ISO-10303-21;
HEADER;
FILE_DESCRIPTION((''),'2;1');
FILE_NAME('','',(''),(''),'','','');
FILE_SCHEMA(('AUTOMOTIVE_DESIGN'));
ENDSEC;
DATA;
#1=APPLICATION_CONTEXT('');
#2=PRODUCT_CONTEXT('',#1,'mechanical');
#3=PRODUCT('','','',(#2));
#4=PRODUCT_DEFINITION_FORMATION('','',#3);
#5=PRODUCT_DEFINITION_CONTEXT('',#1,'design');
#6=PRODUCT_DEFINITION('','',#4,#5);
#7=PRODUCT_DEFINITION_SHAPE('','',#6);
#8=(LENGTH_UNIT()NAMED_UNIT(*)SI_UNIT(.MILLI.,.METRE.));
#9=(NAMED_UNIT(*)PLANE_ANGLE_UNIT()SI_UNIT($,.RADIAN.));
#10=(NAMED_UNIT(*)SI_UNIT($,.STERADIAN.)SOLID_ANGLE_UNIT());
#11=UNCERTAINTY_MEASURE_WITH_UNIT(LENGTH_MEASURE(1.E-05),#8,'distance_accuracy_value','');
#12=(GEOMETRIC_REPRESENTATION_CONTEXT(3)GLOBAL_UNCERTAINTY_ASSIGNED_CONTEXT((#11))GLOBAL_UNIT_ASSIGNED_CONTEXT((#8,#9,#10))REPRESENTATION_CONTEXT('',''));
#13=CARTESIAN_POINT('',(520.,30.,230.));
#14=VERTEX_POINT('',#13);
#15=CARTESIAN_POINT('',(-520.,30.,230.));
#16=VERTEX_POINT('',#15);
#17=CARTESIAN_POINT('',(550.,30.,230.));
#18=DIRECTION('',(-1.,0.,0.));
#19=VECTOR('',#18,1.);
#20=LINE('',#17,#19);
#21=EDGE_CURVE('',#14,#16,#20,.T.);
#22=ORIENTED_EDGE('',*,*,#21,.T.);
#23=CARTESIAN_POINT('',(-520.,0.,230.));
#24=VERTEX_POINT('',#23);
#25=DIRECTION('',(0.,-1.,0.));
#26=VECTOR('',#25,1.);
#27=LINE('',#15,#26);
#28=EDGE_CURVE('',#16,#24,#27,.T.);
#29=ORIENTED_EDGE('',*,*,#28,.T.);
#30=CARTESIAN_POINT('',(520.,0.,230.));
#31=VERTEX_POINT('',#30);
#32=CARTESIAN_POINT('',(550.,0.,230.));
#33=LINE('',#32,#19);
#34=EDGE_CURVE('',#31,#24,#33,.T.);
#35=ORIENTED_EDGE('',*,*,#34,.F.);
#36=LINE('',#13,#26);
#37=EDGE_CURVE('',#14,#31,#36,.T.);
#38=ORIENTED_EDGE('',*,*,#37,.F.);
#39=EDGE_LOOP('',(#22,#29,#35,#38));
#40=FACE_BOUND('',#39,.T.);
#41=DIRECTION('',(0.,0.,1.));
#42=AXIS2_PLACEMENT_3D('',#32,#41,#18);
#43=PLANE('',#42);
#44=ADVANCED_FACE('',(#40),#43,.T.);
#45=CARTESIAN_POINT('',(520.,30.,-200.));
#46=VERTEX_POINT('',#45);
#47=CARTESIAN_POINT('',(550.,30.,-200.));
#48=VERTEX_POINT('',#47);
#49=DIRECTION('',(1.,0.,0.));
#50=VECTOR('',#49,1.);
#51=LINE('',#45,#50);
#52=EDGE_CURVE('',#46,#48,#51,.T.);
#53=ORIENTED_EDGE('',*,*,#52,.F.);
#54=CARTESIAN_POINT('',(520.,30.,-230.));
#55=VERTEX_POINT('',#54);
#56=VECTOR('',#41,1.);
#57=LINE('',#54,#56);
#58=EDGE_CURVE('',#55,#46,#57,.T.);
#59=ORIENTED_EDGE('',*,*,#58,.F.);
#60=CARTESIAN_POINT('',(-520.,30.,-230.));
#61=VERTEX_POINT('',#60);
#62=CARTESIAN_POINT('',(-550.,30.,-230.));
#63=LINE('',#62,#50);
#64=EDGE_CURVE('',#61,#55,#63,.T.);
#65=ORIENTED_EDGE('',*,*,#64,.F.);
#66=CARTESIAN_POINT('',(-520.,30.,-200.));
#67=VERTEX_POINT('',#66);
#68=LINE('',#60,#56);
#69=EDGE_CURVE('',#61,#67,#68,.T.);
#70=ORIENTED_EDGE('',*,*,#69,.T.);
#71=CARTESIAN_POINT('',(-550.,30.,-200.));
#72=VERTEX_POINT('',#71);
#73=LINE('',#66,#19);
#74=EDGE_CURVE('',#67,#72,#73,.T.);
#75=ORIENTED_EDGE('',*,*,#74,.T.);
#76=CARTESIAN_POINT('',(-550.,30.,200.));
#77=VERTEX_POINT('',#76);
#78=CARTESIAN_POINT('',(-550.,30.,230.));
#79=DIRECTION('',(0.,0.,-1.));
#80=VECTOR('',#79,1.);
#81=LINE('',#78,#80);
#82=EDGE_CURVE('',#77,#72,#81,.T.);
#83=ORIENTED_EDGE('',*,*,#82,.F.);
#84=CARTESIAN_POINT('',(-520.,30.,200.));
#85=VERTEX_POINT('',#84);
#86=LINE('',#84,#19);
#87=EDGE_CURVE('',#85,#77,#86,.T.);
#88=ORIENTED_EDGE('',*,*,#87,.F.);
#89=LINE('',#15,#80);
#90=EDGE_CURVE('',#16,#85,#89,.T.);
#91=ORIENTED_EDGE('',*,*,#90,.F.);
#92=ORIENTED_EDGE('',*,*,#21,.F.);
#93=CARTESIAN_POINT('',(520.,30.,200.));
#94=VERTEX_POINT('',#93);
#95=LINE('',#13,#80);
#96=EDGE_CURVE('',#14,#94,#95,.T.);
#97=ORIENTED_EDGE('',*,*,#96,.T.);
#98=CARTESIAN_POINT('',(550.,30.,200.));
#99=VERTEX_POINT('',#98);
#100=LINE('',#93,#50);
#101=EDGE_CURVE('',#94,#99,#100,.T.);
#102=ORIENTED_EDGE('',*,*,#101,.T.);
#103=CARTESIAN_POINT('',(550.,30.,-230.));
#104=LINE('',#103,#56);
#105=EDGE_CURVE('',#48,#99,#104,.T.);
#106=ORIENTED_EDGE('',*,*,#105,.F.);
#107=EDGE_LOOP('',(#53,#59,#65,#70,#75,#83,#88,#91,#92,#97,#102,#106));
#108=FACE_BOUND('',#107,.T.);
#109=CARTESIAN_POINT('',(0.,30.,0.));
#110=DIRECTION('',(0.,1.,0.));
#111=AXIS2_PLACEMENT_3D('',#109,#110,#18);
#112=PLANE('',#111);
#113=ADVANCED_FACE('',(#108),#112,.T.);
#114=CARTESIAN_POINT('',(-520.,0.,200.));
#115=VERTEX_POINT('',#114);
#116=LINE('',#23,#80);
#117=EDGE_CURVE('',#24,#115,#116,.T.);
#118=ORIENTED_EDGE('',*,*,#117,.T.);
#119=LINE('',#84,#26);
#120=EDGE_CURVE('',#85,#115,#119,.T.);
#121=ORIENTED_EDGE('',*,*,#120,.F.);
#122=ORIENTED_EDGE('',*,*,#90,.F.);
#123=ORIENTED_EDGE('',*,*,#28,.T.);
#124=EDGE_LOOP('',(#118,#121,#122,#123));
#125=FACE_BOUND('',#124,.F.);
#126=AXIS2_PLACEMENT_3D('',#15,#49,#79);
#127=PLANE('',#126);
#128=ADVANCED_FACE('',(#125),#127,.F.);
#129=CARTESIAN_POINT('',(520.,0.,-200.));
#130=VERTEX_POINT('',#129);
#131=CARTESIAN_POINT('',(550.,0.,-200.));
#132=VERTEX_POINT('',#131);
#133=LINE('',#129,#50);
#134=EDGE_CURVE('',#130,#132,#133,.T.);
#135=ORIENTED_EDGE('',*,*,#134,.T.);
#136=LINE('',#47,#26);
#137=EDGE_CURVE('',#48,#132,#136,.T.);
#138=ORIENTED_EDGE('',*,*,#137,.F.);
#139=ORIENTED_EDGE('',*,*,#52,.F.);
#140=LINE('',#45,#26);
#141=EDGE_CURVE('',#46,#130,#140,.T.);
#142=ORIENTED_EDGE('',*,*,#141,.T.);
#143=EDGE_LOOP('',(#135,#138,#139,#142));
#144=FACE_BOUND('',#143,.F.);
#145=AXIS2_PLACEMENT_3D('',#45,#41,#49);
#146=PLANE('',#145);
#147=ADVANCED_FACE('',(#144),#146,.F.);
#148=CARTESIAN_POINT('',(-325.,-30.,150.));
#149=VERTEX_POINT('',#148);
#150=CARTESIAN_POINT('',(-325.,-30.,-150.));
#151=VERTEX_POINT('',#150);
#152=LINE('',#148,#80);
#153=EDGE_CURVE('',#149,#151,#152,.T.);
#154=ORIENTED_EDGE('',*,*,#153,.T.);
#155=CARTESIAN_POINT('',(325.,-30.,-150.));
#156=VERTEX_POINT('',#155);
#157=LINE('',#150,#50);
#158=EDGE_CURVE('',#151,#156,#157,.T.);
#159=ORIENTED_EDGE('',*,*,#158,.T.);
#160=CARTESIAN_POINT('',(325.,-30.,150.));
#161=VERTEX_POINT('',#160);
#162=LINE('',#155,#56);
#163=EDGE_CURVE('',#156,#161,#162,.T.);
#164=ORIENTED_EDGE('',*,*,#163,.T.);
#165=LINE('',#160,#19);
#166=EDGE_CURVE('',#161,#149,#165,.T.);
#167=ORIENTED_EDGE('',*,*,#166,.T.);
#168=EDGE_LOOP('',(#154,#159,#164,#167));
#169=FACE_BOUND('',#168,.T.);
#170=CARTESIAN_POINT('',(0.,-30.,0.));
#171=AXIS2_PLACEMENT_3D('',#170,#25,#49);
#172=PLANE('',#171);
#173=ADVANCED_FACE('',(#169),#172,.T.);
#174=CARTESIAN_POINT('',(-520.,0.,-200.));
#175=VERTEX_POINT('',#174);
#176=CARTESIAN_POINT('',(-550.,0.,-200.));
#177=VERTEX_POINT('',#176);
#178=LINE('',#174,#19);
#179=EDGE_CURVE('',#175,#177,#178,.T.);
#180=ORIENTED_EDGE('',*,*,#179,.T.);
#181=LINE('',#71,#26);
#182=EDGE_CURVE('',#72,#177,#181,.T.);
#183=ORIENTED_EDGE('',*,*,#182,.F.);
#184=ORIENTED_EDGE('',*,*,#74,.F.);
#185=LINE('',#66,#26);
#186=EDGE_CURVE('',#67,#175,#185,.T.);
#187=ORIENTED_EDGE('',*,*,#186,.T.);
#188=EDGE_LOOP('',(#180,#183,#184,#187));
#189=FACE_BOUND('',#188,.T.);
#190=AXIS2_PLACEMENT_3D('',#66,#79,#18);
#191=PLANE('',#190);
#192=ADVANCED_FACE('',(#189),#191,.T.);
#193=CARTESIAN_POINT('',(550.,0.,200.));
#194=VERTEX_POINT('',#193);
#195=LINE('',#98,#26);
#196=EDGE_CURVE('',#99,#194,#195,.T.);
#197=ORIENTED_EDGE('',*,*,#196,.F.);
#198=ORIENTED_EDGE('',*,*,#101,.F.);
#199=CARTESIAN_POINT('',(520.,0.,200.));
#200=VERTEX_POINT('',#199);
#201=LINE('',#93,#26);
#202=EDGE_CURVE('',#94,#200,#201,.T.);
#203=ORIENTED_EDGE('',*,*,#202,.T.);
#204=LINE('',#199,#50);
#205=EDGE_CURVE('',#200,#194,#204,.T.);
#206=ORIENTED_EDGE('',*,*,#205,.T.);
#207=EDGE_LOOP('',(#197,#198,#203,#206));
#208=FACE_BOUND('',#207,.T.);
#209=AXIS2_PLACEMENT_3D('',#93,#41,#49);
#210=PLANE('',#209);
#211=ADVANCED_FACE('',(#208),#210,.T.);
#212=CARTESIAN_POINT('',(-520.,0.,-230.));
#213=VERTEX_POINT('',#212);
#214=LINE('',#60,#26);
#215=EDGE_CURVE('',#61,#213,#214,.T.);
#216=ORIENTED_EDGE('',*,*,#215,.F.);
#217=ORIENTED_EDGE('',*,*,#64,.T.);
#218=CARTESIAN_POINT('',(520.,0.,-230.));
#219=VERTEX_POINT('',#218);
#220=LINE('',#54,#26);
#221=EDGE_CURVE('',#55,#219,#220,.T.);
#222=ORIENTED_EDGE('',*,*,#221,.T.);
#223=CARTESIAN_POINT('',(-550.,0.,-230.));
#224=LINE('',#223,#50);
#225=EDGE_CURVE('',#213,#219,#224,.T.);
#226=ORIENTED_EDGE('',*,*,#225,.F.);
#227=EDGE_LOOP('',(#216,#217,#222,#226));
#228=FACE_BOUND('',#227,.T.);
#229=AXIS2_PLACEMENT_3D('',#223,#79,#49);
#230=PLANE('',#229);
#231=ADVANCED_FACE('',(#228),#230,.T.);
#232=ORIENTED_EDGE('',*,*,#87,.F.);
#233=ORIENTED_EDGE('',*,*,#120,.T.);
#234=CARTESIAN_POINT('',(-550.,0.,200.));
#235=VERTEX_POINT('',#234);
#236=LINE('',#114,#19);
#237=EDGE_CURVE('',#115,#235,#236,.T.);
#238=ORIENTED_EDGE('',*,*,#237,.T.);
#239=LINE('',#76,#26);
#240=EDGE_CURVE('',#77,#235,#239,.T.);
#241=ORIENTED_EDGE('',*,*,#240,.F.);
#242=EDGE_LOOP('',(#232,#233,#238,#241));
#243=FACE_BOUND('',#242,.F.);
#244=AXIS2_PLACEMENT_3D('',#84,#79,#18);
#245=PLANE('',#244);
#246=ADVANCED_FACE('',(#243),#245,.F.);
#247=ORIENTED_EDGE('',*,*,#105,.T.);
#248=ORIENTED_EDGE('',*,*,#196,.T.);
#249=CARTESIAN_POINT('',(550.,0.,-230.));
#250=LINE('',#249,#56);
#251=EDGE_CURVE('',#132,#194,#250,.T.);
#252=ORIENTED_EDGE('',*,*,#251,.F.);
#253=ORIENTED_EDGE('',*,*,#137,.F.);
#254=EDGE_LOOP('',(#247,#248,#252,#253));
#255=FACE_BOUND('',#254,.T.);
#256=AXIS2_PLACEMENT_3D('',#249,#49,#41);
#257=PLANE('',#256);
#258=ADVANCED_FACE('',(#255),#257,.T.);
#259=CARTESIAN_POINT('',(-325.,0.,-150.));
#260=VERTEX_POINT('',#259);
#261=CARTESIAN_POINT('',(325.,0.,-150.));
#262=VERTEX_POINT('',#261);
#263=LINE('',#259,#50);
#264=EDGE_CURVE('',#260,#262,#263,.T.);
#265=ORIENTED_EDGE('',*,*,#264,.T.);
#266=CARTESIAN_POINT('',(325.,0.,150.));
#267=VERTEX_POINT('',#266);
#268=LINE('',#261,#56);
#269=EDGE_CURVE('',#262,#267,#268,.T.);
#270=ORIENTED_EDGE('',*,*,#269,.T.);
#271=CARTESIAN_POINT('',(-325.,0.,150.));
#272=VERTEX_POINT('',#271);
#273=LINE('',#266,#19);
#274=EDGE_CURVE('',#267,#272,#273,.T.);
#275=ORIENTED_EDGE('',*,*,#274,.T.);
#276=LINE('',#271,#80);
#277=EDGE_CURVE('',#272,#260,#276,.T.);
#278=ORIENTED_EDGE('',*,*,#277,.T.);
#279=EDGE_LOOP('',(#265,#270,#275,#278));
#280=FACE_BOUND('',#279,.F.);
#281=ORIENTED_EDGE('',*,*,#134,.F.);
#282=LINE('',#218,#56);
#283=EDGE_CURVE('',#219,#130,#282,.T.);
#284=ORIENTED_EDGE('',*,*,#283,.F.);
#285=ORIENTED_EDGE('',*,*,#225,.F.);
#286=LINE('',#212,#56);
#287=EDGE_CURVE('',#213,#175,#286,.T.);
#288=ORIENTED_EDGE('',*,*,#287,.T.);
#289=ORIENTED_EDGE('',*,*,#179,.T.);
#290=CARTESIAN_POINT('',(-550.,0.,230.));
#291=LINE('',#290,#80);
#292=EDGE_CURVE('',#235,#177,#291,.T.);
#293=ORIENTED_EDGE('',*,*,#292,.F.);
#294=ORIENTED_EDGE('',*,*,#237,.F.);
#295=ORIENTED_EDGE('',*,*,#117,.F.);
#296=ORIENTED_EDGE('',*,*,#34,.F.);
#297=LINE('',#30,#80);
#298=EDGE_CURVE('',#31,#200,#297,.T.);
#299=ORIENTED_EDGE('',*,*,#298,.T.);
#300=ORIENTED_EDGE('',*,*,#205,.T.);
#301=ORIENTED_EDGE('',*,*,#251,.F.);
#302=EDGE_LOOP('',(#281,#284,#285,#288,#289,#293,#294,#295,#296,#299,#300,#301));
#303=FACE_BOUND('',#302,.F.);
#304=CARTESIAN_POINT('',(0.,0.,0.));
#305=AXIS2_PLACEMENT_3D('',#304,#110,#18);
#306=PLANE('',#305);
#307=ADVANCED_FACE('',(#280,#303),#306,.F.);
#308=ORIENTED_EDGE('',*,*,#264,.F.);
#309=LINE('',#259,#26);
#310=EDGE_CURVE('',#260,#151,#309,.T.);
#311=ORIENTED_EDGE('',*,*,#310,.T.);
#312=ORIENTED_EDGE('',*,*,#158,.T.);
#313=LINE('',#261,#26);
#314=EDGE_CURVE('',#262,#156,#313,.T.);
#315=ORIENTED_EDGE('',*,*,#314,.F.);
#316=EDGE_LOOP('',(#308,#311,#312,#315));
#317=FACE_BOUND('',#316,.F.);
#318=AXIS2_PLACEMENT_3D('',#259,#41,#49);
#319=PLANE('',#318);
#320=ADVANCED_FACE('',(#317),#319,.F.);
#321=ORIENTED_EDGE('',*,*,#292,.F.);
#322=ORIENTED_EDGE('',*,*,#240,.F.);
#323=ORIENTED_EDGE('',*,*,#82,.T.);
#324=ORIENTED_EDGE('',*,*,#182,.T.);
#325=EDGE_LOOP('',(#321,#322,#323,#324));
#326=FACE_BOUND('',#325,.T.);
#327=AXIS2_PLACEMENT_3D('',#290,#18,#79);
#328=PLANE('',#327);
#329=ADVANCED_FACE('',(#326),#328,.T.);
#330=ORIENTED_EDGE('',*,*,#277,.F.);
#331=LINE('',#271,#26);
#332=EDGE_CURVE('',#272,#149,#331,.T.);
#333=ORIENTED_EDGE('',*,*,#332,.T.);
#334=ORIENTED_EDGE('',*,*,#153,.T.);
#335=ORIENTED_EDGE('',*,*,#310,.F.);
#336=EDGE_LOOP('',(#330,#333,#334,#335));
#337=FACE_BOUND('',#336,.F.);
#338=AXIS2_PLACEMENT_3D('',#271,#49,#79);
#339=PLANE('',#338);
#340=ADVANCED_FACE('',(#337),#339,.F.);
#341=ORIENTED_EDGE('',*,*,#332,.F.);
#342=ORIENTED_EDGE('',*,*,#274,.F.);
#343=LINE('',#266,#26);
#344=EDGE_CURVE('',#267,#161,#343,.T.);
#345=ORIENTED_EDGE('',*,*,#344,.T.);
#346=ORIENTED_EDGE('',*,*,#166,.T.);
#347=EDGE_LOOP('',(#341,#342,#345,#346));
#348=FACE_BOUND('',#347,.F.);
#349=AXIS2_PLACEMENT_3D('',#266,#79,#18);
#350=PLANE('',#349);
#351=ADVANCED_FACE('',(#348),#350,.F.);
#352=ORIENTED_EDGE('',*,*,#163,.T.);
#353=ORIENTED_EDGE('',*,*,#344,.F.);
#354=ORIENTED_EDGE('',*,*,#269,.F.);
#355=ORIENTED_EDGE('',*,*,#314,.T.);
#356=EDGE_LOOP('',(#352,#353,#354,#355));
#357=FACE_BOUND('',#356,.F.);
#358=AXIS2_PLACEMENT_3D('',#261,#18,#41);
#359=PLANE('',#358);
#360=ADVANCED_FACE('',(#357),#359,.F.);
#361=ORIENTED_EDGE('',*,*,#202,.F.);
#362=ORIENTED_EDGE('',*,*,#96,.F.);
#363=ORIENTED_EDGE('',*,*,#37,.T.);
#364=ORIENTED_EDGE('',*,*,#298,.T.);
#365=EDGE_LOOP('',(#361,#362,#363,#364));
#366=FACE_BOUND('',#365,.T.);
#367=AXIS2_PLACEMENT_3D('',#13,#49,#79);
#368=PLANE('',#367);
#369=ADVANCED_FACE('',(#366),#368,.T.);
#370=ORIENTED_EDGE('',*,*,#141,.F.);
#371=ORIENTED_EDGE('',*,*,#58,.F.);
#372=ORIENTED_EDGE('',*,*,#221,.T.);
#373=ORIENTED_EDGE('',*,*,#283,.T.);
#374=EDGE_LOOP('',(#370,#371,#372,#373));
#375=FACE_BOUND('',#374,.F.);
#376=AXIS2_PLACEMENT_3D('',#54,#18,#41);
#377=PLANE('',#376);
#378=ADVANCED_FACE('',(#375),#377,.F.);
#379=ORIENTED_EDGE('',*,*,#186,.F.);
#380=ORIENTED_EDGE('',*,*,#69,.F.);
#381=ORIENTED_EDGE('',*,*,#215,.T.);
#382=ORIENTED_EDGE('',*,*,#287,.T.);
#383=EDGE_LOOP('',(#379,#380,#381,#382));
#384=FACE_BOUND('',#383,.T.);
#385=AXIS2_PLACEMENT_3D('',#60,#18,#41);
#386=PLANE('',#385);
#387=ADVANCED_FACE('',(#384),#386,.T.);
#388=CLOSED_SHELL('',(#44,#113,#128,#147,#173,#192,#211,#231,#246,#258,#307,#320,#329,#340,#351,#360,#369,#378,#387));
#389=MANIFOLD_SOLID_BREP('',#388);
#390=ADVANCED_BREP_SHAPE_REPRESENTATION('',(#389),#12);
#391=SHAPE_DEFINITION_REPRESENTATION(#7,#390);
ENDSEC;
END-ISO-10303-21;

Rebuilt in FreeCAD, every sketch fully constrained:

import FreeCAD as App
import Part
import Sketcher

V = App.Vector
Q = App.Units.Quantity


def add_polygon(sketch, points):
    """Adds a closed chain of lines whose ends are joined by coincident constraints."""
    first, n = sketch.GeometryCount, len(points)
    for a, b in zip(points, points[1:] + points[:1]):
        sketch.addGeometry(Part.LineSegment(App.Vector(*a, 0), App.Vector(*b, 0)), False)
    for i in range(n):
        sketch.addConstraint(Sketcher.Constraint("Coincident", first + i, 2, first + (i + 1) % n, 1))

doc = App.newDocument("Part")
body = doc.addObject("PartDesign::Body", "Body")

# Sketch on XZ plane
sketch1 = doc.addObject("Sketcher::SketchObject", "Sketch")
body.addObject(sketch1)
sketch1.AttachmentSupport = (doc.XZ_Plane, [""])
sketch1.MapMode = "FlatFace"
add_polygon(sketch1, [(-550, 230), (550, 230), (550, -230), (-550, -230)])  # lines 0-3
sketch1.addConstraint([
    Sketcher.Constraint("Horizontal", 0),
    Sketcher.Constraint("Vertical", 1),
    Sketcher.Constraint("Horizontal", 2),
    Sketcher.Constraint("Vertical", 3),
    Sketcher.Constraint("Symmetric", 0, 2, 2, 2, -1, 1),
    Sketcher.Constraint("DistanceX", 0, 1, 0, 2, Q("1100 mm")),
    Sketcher.Constraint("DistanceY", 1, 2, 1, 1, Q("460 mm")),
])
pad1 = doc.addObject("PartDesign::Pad", "Pad")
body.addObject(pad1)
pad1.Profile = sketch1
pad1.Length = 30
pad1.Reversed = True

# Sketch on XZ plane
sketch2 = doc.addObject("Sketcher::SketchObject", "Sketch001")
body.addObject(sketch2)
sketch2.AttachmentSupport = (doc.XZ_Plane, [""])
sketch2.MapMode = "FlatFace"
sketch2.AttachmentOffset = App.Placement(V(0, 0, -30), App.Rotation())
add_polygon(sketch2, [(-520, -230), (-550, -230), (-550, -200), (-520, -200)])  # lines 0-3
add_polygon(sketch2, [(-520, 200), (-550, 200), (-550, 230), (-520, 230)])  # lines 4-7
add_polygon(sketch2, [(520, 230), (550, 230), (550, 200), (520, 200)])  # lines 8-11
add_polygon(sketch2, [(520, -200), (550, -200), (550, -230), (520, -230)])  # lines 12-15
sketch2.addConstraint([
    Sketcher.Constraint("Horizontal", 0),
    Sketcher.Constraint("Vertical", 1),
    Sketcher.Constraint("Horizontal", 2),
    Sketcher.Constraint("Vertical", 3),
    Sketcher.Constraint("Horizontal", 4),
    Sketcher.Constraint("Vertical", 5),
    Sketcher.Constraint("Horizontal", 6),
    Sketcher.Constraint("Vertical", 7),
    Sketcher.Constraint("Horizontal", 8),
    Sketcher.Constraint("Vertical", 9),
    Sketcher.Constraint("Horizontal", 10),
    Sketcher.Constraint("Vertical", 11),
    Sketcher.Constraint("Horizontal", 12),
    Sketcher.Constraint("Vertical", 13),
    Sketcher.Constraint("Horizontal", 14),
    Sketcher.Constraint("Vertical", 15),
    Sketcher.Constraint("Symmetric", 0, 2, 8, 2, -1, 1),
    Sketcher.Constraint("Symmetric", 2, 2, 10, 2, -1, 1),
    Sketcher.Constraint("Symmetric", 4, 2, 12, 2, -1, 1),
    Sketcher.Constraint("Symmetric", 6, 2, 14, 2, -1, 1),
    Sketcher.Constraint("Symmetric", 5, 2, 8, 2, -2),
    Sketcher.Constraint("Symmetric", 7, 2, 10, 2, -2),
    Sketcher.Constraint("Equal", 14, 1),
    Sketcher.Constraint("DistanceX", 0, 2, 0, 1, Q("30 mm")),
    Sketcher.Constraint("DistanceX", 0, 2, -1, 1, Q("550 mm")),
    Sketcher.Constraint("DistanceY", 0, 2, -1, 1, Q("230 mm")),
])
pocket1 = doc.addObject("PartDesign::Pocket", "Pocket")
body.addObject(pocket1)
pocket1.Profile = sketch2
pocket1.Length = 30
pocket1.Reversed = True

# Sketch on XZ plane
sketch3 = doc.addObject("Sketcher::SketchObject", "Sketch002")
body.addObject(sketch3)
sketch3.AttachmentSupport = (doc.XZ_Plane, [""])
sketch3.MapMode = "FlatFace"
add_polygon(sketch3, [(-325, 150), (-325, -150), (325, -150), (325, 150)])  # lines 0-3
sketch3.addConstraint([
    Sketcher.Constraint("Vertical", 0),
    Sketcher.Constraint("Horizontal", 1),
    Sketcher.Constraint("Vertical", 2),
    Sketcher.Constraint("Horizontal", 3),
    Sketcher.Constraint("Symmetric", 0, 2, 2, 2, -1, 1),
    Sketcher.Constraint("DistanceX", 1, 1, 1, 2, Q("650 mm")),
    Sketcher.Constraint("DistanceY", 0, 2, 0, 1, Q("300 mm")),
])
pad2 = doc.addObject("PartDesign::Pad", "Pad001")
body.addObject(pad2)
pad2.Profile = sketch3
pad2.Length = 30

doc.recompute()
